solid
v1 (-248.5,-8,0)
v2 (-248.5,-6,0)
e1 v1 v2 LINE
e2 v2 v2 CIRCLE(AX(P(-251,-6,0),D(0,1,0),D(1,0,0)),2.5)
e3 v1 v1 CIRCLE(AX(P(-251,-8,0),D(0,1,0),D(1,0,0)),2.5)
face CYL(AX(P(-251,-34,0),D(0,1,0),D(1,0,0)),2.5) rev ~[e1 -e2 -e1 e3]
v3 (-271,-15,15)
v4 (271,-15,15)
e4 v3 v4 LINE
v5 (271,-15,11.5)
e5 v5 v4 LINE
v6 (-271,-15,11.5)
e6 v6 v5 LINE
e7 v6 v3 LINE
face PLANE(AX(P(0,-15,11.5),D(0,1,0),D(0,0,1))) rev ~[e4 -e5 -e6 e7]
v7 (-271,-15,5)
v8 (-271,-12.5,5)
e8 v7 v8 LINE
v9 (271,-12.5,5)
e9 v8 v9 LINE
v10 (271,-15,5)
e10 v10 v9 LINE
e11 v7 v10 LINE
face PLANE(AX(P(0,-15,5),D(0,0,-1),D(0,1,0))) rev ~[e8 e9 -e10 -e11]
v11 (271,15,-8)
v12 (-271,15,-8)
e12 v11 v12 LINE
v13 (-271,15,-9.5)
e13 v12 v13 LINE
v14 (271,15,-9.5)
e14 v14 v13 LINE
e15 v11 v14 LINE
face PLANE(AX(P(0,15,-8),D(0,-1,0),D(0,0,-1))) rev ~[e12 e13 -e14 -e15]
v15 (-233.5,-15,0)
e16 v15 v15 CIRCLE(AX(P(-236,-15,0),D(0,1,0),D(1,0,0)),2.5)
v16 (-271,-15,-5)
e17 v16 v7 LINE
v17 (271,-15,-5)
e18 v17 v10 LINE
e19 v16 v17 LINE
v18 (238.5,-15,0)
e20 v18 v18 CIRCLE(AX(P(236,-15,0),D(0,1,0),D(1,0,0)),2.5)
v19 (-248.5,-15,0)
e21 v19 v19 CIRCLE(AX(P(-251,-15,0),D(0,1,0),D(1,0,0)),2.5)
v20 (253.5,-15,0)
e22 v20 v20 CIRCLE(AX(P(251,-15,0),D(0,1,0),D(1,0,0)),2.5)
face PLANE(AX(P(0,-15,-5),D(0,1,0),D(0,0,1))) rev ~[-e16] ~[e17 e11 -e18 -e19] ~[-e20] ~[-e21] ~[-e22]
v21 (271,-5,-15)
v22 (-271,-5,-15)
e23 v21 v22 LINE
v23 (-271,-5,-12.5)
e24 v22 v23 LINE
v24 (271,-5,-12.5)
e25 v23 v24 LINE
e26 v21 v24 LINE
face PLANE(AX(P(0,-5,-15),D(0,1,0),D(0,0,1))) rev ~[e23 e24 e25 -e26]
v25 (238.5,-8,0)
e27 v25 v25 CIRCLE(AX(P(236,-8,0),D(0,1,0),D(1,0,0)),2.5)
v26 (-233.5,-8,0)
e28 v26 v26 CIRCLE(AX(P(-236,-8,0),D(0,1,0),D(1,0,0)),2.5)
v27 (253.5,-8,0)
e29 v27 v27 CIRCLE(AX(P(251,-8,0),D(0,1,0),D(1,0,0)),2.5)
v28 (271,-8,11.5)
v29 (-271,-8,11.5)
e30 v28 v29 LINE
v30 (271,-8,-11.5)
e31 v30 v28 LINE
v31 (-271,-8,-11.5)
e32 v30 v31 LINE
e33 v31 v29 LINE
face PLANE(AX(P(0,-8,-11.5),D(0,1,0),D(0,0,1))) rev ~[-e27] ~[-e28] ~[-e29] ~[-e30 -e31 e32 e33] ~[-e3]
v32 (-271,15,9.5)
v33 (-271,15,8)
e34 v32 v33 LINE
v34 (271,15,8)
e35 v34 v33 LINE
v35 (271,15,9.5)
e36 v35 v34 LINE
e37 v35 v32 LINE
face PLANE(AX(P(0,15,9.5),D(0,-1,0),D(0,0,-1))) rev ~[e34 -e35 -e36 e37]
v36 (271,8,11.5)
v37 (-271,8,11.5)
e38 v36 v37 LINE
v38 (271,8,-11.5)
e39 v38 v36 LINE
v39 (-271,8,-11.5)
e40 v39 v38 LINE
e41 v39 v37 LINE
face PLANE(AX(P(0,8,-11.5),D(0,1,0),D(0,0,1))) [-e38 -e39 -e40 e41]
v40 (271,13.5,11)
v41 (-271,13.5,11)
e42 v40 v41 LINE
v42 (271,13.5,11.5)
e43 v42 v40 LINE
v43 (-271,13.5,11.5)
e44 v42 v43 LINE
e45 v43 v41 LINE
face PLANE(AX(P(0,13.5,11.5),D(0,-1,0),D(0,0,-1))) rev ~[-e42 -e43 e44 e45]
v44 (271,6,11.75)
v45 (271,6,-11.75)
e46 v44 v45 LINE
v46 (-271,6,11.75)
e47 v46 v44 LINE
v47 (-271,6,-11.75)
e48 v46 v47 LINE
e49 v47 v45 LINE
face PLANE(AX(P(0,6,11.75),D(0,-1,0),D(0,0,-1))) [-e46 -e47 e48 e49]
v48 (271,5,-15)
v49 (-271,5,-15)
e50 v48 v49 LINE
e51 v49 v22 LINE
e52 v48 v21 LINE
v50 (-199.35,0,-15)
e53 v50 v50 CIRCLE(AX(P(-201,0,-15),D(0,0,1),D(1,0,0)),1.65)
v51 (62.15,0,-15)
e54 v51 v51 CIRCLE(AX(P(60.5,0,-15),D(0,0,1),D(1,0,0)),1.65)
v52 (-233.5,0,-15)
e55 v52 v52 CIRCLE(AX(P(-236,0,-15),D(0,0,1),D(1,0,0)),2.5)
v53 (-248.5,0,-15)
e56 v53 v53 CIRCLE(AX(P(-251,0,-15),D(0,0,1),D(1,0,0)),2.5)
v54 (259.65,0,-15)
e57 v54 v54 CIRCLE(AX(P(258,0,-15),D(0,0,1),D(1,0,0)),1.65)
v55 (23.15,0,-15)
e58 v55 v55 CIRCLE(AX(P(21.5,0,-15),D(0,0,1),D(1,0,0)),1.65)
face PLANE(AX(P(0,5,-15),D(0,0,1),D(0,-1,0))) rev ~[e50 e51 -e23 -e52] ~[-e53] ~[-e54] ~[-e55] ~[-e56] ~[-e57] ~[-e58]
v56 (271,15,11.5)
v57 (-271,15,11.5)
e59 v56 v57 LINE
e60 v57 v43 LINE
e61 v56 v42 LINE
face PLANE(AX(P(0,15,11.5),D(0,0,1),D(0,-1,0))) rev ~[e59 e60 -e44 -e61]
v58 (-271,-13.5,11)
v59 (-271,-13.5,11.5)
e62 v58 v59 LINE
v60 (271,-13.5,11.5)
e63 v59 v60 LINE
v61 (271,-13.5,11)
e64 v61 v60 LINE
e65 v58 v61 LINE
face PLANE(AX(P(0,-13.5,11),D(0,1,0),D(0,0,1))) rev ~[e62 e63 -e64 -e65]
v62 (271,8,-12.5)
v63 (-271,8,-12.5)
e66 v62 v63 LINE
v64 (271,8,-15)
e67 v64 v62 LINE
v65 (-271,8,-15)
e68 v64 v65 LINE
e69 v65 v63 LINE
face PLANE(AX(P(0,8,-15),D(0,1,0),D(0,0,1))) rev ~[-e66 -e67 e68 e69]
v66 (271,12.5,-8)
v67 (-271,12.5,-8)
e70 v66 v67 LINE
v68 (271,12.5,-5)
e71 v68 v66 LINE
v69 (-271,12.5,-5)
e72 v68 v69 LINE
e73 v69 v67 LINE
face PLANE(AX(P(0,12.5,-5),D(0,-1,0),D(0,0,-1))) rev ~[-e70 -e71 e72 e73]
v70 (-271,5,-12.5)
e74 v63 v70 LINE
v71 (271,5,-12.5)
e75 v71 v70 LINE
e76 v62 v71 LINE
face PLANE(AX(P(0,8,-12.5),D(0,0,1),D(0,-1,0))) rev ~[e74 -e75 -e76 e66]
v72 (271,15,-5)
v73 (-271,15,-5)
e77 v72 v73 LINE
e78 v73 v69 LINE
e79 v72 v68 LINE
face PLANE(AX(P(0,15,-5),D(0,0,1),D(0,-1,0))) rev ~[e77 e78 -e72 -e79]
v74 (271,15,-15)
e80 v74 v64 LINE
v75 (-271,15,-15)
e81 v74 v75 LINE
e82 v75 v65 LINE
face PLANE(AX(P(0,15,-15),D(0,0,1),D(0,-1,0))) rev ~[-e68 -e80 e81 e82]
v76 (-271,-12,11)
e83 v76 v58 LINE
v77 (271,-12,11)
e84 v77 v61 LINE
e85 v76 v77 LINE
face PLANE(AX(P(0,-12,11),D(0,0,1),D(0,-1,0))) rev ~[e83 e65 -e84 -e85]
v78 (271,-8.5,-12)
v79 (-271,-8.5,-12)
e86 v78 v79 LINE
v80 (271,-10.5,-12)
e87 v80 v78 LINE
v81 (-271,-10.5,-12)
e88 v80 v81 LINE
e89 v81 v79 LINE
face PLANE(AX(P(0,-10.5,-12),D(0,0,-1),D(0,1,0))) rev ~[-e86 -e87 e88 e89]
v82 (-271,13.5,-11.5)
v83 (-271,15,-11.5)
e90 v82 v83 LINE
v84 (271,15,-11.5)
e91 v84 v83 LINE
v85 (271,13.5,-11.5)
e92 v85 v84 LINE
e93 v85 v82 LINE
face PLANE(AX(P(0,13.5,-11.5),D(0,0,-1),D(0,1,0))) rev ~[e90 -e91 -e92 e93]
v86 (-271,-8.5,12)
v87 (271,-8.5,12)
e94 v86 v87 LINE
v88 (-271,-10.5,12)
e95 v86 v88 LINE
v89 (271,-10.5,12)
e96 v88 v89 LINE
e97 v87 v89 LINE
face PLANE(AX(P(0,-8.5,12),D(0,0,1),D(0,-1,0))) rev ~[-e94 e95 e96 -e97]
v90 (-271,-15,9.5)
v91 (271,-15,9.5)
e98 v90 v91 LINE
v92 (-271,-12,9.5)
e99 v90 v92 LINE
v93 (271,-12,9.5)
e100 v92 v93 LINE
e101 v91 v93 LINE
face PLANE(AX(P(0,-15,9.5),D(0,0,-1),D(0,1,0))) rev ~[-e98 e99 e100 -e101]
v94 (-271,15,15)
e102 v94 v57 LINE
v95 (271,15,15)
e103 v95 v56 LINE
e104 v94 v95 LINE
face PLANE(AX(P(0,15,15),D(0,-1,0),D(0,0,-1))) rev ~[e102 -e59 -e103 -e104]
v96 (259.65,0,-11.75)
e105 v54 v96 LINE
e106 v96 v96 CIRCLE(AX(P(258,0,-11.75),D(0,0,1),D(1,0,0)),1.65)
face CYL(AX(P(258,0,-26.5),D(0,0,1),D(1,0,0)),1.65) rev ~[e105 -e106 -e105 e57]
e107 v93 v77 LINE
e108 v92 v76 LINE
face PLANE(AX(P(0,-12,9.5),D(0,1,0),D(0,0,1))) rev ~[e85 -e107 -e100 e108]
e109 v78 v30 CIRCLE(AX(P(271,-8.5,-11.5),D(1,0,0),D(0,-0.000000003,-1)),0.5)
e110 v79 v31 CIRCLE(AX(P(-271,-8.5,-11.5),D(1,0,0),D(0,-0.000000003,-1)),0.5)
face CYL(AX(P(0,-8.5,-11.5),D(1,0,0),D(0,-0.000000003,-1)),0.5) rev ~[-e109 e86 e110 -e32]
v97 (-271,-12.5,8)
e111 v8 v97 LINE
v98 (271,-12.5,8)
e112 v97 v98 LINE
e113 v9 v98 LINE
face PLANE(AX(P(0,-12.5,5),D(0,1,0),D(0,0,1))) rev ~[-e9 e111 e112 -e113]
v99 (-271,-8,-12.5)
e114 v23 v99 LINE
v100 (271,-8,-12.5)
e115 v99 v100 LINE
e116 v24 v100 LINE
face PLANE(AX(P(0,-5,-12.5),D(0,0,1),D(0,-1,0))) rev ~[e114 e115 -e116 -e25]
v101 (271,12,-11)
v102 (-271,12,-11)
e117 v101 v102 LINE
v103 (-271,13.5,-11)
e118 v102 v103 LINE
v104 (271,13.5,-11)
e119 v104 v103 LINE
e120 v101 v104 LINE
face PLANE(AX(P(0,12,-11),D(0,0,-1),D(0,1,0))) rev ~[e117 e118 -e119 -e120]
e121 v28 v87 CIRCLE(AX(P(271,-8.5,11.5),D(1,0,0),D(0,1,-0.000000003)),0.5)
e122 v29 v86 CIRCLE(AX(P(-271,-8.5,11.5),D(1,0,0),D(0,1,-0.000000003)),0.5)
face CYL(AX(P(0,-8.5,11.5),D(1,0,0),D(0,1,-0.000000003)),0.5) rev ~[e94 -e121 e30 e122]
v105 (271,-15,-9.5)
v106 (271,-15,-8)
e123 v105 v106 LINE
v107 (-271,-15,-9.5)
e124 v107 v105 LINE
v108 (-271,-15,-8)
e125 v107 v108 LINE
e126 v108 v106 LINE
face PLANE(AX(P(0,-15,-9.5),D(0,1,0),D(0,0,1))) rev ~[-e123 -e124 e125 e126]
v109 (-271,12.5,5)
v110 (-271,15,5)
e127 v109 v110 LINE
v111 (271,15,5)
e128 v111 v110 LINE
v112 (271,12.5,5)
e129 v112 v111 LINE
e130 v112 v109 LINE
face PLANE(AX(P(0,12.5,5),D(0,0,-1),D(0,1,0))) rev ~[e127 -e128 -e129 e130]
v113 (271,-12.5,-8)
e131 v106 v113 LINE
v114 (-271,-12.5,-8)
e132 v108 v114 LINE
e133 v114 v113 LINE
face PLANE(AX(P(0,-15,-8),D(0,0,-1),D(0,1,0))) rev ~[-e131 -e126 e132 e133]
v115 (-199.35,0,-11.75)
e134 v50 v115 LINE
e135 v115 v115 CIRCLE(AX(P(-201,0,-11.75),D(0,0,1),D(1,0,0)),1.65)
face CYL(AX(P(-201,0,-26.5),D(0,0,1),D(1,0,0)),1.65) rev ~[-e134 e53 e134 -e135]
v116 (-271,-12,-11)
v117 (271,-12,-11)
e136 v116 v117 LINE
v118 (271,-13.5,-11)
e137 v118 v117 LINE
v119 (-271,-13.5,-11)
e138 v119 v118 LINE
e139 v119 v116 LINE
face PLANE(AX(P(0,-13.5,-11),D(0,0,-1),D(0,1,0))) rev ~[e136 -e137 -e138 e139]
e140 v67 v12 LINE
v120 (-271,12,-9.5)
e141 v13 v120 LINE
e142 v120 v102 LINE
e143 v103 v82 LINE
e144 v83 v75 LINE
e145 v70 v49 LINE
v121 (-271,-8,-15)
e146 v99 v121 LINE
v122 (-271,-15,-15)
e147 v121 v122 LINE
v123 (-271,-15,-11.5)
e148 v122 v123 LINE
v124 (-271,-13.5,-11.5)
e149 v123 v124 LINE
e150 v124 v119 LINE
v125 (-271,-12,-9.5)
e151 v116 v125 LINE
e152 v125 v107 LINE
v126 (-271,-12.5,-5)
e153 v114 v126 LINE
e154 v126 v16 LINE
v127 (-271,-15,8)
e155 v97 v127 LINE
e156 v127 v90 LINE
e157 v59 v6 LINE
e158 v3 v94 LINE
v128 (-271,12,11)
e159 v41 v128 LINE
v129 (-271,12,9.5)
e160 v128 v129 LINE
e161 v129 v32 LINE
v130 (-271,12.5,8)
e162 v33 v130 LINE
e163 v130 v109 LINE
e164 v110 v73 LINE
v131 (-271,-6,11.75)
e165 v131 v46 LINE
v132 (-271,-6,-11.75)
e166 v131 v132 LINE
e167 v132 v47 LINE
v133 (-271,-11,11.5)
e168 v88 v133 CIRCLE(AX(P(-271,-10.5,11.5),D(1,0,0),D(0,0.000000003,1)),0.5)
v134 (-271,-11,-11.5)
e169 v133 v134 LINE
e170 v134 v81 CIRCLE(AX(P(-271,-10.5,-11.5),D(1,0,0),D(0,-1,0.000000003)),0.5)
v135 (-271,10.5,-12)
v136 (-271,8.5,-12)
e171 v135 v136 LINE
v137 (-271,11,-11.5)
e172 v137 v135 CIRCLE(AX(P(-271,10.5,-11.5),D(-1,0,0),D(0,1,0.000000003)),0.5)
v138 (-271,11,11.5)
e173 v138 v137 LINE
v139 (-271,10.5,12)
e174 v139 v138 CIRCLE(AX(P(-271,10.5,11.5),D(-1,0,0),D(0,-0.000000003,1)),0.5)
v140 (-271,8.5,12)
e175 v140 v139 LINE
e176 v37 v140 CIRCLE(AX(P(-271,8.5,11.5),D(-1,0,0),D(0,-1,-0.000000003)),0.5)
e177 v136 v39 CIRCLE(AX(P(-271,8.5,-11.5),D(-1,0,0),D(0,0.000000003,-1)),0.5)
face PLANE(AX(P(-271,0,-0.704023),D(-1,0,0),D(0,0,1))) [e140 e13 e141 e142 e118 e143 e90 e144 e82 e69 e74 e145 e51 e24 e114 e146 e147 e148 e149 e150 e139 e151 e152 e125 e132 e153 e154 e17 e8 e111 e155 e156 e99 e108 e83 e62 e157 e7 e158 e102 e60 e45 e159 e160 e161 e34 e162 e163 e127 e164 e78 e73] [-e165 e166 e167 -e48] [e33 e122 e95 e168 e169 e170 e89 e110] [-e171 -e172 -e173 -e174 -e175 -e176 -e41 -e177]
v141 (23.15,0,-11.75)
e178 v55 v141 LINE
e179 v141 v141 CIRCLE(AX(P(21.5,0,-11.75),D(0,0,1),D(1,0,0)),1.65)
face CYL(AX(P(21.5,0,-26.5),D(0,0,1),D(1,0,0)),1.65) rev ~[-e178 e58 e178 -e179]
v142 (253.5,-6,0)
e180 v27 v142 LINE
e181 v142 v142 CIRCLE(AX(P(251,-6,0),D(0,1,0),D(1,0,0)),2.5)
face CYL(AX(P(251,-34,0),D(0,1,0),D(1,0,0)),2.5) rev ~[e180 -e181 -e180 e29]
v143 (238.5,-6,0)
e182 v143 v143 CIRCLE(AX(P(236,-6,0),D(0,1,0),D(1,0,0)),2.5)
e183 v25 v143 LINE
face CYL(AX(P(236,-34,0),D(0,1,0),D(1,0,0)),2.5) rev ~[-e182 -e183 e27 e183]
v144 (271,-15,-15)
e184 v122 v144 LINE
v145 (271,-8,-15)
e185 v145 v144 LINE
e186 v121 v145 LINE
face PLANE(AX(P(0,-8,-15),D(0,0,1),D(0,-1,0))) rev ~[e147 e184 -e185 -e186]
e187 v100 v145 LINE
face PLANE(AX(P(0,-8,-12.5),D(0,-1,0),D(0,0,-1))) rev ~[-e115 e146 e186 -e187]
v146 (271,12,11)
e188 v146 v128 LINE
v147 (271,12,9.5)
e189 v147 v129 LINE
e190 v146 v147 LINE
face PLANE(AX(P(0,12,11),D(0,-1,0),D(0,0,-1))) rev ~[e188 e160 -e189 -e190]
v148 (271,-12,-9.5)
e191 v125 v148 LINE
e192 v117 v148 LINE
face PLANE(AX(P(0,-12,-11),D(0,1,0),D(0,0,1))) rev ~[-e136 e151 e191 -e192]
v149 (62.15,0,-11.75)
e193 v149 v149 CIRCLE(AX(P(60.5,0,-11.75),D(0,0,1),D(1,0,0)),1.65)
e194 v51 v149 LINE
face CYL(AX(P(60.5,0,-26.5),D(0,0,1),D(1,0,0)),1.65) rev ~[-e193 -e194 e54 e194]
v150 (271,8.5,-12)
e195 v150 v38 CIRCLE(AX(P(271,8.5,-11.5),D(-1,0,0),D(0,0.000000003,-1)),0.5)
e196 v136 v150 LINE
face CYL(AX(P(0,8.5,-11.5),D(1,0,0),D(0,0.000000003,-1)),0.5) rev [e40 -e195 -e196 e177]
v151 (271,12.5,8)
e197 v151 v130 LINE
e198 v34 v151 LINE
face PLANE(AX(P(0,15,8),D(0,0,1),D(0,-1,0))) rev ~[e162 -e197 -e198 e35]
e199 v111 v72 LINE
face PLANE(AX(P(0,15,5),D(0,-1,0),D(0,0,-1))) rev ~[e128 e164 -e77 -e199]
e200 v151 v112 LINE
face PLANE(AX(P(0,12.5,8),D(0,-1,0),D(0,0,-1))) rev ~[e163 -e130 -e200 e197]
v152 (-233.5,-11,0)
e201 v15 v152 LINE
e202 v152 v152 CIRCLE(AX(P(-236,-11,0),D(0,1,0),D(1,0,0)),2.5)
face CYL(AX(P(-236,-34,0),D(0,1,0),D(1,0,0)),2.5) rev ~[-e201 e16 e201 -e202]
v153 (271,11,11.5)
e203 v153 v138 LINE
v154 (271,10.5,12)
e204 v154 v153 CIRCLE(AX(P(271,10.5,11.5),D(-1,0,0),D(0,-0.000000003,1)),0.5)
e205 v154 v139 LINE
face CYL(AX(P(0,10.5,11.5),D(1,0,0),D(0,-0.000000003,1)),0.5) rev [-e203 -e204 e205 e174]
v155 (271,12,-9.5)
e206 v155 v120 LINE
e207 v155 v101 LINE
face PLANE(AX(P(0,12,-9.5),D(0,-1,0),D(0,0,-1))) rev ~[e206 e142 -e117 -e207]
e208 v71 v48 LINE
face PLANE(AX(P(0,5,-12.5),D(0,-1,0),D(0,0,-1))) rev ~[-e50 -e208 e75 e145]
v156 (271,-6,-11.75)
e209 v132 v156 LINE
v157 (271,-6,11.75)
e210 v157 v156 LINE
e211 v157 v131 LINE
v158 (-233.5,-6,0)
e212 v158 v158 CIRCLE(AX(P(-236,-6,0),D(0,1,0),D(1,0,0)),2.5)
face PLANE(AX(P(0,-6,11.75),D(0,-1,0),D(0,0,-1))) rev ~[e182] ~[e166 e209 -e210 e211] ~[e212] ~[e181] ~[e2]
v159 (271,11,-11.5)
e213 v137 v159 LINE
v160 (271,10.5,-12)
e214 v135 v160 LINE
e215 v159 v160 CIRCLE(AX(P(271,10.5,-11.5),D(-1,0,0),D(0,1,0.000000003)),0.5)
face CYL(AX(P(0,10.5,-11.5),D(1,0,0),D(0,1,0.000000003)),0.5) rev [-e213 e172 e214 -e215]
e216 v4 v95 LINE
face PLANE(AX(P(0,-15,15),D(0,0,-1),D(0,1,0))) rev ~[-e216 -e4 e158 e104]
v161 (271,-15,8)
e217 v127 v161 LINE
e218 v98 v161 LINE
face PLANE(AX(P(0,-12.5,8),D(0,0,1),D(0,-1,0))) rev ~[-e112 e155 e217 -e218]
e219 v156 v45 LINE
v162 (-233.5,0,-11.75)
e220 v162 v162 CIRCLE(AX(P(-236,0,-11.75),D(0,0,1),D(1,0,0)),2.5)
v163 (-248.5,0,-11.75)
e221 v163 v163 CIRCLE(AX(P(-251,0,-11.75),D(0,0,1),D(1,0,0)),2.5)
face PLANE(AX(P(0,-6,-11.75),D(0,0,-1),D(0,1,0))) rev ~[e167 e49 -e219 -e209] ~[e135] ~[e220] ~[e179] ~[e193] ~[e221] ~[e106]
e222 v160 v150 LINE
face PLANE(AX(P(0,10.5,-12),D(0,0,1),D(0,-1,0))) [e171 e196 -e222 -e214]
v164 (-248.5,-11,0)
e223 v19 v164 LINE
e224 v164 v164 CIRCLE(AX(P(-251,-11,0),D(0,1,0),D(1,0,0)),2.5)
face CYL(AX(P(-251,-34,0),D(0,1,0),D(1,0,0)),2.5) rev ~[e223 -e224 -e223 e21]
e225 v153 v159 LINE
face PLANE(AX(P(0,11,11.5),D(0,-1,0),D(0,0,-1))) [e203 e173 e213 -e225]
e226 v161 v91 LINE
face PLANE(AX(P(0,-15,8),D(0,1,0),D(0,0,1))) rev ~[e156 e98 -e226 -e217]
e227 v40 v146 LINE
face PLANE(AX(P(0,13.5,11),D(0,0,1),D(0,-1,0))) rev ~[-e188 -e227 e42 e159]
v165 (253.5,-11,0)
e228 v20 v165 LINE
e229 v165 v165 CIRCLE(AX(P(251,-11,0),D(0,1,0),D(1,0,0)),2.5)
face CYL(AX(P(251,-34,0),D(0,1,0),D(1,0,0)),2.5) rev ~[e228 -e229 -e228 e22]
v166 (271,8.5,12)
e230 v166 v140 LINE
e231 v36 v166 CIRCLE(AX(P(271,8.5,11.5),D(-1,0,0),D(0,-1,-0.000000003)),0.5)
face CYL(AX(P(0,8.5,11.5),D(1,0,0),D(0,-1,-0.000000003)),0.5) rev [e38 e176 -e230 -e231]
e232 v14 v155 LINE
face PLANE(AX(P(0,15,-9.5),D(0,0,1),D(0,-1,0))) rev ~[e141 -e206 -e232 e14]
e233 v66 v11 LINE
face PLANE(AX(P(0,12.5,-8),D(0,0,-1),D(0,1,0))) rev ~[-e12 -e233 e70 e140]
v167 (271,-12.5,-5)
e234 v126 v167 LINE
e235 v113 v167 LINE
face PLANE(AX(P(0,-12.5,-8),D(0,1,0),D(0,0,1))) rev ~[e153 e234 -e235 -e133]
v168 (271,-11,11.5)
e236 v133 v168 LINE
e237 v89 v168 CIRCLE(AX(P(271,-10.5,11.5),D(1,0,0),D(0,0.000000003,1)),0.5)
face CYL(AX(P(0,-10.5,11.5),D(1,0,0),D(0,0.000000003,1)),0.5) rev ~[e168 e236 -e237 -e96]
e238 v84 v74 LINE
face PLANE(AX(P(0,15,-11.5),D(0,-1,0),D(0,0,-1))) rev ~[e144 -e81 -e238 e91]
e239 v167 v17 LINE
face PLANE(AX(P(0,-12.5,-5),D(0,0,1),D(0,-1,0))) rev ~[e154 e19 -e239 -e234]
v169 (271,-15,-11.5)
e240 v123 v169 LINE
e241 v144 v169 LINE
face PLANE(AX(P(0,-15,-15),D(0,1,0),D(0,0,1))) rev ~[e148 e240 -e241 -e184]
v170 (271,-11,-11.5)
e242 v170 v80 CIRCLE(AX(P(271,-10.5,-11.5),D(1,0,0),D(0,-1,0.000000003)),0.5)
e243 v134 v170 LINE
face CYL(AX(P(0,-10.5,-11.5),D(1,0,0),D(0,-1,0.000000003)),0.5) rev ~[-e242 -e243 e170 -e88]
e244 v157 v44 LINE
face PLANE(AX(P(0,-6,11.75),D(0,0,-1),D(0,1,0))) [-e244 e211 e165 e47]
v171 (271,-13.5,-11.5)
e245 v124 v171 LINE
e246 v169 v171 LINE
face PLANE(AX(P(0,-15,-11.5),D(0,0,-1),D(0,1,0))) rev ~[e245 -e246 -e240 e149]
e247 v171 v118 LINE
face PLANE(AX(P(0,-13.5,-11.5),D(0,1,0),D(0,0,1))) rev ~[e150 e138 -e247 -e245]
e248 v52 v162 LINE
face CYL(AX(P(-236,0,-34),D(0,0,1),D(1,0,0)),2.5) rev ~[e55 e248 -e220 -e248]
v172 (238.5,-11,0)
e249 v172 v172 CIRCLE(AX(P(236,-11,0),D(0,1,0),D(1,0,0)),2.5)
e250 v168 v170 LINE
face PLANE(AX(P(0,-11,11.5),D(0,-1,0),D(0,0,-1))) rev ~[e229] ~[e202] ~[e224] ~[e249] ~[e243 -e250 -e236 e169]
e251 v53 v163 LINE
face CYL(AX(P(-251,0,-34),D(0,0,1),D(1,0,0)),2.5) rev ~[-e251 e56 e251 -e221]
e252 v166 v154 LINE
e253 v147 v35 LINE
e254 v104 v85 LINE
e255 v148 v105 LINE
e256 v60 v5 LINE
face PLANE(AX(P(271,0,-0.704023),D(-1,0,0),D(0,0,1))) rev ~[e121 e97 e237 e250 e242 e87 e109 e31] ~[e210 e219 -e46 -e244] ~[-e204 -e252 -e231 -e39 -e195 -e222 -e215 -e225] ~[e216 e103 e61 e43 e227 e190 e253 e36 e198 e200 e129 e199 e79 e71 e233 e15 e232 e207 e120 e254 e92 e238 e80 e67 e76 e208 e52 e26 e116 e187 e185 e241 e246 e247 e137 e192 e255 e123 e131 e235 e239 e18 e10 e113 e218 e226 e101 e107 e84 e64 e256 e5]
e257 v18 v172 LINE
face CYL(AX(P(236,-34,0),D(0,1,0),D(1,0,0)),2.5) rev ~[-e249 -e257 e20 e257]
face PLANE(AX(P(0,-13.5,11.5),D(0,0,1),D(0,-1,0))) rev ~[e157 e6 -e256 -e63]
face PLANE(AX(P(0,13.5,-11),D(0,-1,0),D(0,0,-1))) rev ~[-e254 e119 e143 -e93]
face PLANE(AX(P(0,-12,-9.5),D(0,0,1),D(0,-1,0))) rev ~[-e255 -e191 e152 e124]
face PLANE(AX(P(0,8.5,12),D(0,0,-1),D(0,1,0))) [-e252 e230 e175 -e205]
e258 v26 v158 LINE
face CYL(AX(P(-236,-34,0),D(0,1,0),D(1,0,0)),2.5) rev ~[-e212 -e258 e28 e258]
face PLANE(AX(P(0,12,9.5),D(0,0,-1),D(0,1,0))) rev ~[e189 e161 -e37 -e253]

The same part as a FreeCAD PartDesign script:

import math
import FreeCAD as App
import Part
import Sketcher
Q = App.Units.Quantity

doc = App.newDocument("Part")
body = doc.addObject("PartDesign::Body", "Body")

# Sketch on YZ plane
sketch1 = doc.addObject("Sketcher::SketchObject", "Sketch")
body.addObject(sketch1)
sketch1.AttachmentSupport = (doc.YZ_Plane, [""])
sketch1.MapMode = "FlatFace"
sketch1.addGeometry(Part.LineSegment(App.Vector(15, 11.5, 0), App.Vector(15, 15, 0)), False)
sketch1.addGeometry(Part.LineSegment(App.Vector(15, 15, 0), App.Vector(-15, 15, 0)), False)
sketch1.addGeometry(Part.LineSegment(App.Vector(-15, 15, 0), App.Vector(-15, 11.5, 0)), False)
sketch1.addGeometry(Part.LineSegment(App.Vector(-15, 11.5, 0), App.Vector(-13.5, 11.5, 0)), False)
sketch1.addGeometry(Part.LineSegment(App.Vector(-13.5, 11.5, 0), App.Vector(-13.5, 11, 0)), False)
sketch1.addGeometry(Part.LineSegment(App.Vector(-13.5, 11, 0), App.Vector(-12, 11, 0)), False)
sketch1.addGeometry(Part.LineSegment(App.Vector(-12, 11, 0), App.Vector(-12, 9.5, 0)), False)
sketch1.addGeometry(Part.LineSegment(App.Vector(-12, 9.5, 0), App.Vector(-15, 9.5, 0)), False)
sketch1.addGeometry(Part.LineSegment(App.Vector(-15, 9.5, 0), App.Vector(-15, 8, 0)), False)
sketch1.addGeometry(Part.LineSegment(App.Vector(-15, 8, 0), App.Vector(-12.5, 8, 0)), False)
sketch1.addGeometry(Part.LineSegment(App.Vector(-12.5, 8, 0), App.Vector(-12.5, 5, 0)), False)
sketch1.addGeometry(Part.LineSegment(App.Vector(-12.5, 5, 0), App.Vector(-15, 5, 0)), False)
sketch1.addGeometry(Part.LineSegment(App.Vector(-15, 5, 0), App.Vector(-15, -5, 0)), False)
sketch1.addGeometry(Part.LineSegment(App.Vector(-15, -5, 0), App.Vector(-12.5, -5, 0)), False)
sketch1.addGeometry(Part.LineSegment(App.Vector(-12.5, -5, 0), App.Vector(-12.5, -8, 0)), False)
sketch1.addGeometry(Part.LineSegment(App.Vector(-12.5, -8, 0), App.Vector(-15, -8, 0)), False)
sketch1.addGeometry(Part.LineSegment(App.Vector(-15, -8, 0), App.Vector(-15, -9.5, 0)), False)
sketch1.addGeometry(Part.LineSegment(App.Vector(-15, -9.5, 0), App.Vector(-12, -9.5, 0)), False)
sketch1.addGeometry(Part.LineSegment(App.Vector(-12, -9.5, 0), App.Vector(-12, -11, 0)), False)
sketch1.addGeometry(Part.LineSegment(App.Vector(-12, -11, 0), App.Vector(-13.5, -11, 0)), False)
sketch1.addGeometry(Part.LineSegment(App.Vector(-13.5, -11, 0), App.Vector(-13.5, -11.5, 0)), False)
sketch1.addGeometry(Part.LineSegment(App.Vector(-13.5, -11.5, 0), App.Vector(-15, -11.5, 0)), False)
sketch1.addGeometry(Part.LineSegment(App.Vector(-15, -11.5, 0), App.Vector(-15, -15, 0)), False)
sketch1.addGeometry(Part.LineSegment(App.Vector(-15, -15, 0), App.Vector(-8, -15, 0)), False)
sketch1.addGeometry(Part.LineSegment(App.Vector(-8, -15, 0), App.Vector(-8, -12.5, 0)), False)
sketch1.addGeometry(Part.LineSegment(App.Vector(-8, -12.5, 0), App.Vector(-5, -12.5, 0)), False)
sketch1.addGeometry(Part.LineSegment(App.Vector(-5, -12.5, 0), App.Vector(-5, -15, 0)), False)
sketch1.addGeometry(Part.LineSegment(App.Vector(-5, -15, 0), App.Vector(5, -15, 0)), False)
sketch1.addGeometry(Part.LineSegment(App.Vector(5, -15, 0), App.Vector(5, -12.5, 0)), False)
sketch1.addGeometry(Part.LineSegment(App.Vector(5, -12.5, 0), App.Vector(8, -12.5, 0)), False)
sketch1.addGeometry(Part.LineSegment(App.Vector(8, -12.5, 0), App.Vector(8, -15, 0)), False)
sketch1.addGeometry(Part.LineSegment(App.Vector(8, -15, 0), App.Vector(15, -15, 0)), False)
sketch1.addGeometry(Part.LineSegment(App.Vector(15, -15, 0), App.Vector(15, -11.5, 0)), False)
sketch1.addGeometry(Part.LineSegment(App.Vector(15, -11.5, 0), App.Vector(13.5, -11.5, 0)), False)
sketch1.addGeometry(Part.LineSegment(App.Vector(13.5, -11.5, 0), App.Vector(13.5, -11, 0)), False)
sketch1.addGeometry(Part.LineSegment(App.Vector(13.5, -11, 0), App.Vector(12, -11, 0)), False)
sketch1.addGeometry(Part.LineSegment(App.Vector(12, -11, 0), App.Vector(12, -9.5, 0)), False)
sketch1.addGeometry(Part.LineSegment(App.Vector(12, -9.5, 0), App.Vector(15, -9.5, 0)), False)
sketch1.addGeometry(Part.LineSegment(App.Vector(15, -9.5, 0), App.Vector(15, -8, 0)), False)
sketch1.addGeometry(Part.LineSegment(App.Vector(15, -8, 0), App.Vector(12.5, -8, 0)), False)
sketch1.addGeometry(Part.LineSegment(App.Vector(12.5, -8, 0), App.Vector(12.5, -5, 0)), False)
sketch1.addGeometry(Part.LineSegment(App.Vector(12.5, -5, 0), App.Vector(15, -5, 0)), False)
sketch1.addGeometry(Part.LineSegment(App.Vector(15, -5, 0), App.Vector(15, 5, 0)), False)
sketch1.addGeometry(Part.LineSegment(App.Vector(15, 5, 0), App.Vector(12.5, 5, 0)), False)
sketch1.addGeometry(Part.LineSegment(App.Vector(12.5, 5, 0), App.Vector(12.5, 8, 0)), False)
sketch1.addGeometry(Part.LineSegment(App.Vector(12.5, 8, 0), App.Vector(15, 8, 0)), False)
sketch1.addGeometry(Part.LineSegment(App.Vector(15, 8, 0), App.Vector(15, 9.5, 0)), False)
sketch1.addGeometry(Part.LineSegment(App.Vector(15, 9.5, 0), App.Vector(12, 9.5, 0)), False)
sketch1.addGeometry(Part.LineSegment(App.Vector(12, 9.5, 0), App.Vector(12, 11, 0)), False)
sketch1.addGeometry(Part.LineSegment(App.Vector(12, 11, 0), App.Vector(13.5, 11, 0)), False)
sketch1.addGeometry(Part.LineSegment(App.Vector(13.5, 11, 0), App.Vector(13.5, 11.5, 0)), False)
sketch1.addGeometry(Part.LineSegment(App.Vector(13.5, 11.5, 0), App.Vector(15, 11.5, 0)), False)
sketch1.addGeometry(Part.ArcOfCircle(Part.Circle(App.Vector(-10.5, -11.5, 0), App.Vector(0, 0, 1), 0.5), math.radians(180), math.radians(270)), False)
sketch1.addGeometry(Part.LineSegment(App.Vector(-11, -11.5, 0), App.Vector(-11, 11.5, 0)), False)
sketch1.addGeometry(Part.ArcOfCircle(Part.Circle(App.Vector(-10.5, 11.5, 0), App.Vector(0, 0, 1), 0.5), math.radians(90), math.radians(180)), False)
sketch1.addGeometry(Part.LineSegment(App.Vector(-10.5, 12, 0), App.Vector(-8.5, 12, 0)), False)
sketch1.addGeometry(Part.ArcOfCircle(Part.Circle(App.Vector(-8.5, 11.5, 0), App.Vector(0, 0, 1), 0.5), math.radians(0), math.radians(90)), False)
sketch1.addGeometry(Part.LineSegment(App.Vector(-8, 11.5, 0), App.Vector(-8, -11.5, 0)), False)
sketch1.addGeometry(Part.ArcOfCircle(Part.Circle(App.Vector(-8.5, -11.5, 0), App.Vector(0, 0, 1), 0.5), math.radians(-90), math.radians(0)), False)
sketch1.addGeometry(Part.LineSegment(App.Vector(-8.5, -12, 0), App.Vector(-10.5, -12, 0)), False)
sketch1.addGeometry(Part.LineSegment(App.Vector(-6, 11.75, 0), App.Vector(6, 11.75, 0)), False)
sketch1.addGeometry(Part.LineSegment(App.Vector(6, 11.75, 0), App.Vector(6, -11.75, 0)), False)
sketch1.addGeometry(Part.LineSegment(App.Vector(6, -11.75, 0), App.Vector(-6, -11.75, 0)), False)
sketch1.addGeometry(Part.LineSegment(App.Vector(-6, -11.75, 0), App.Vector(-6, 11.75, 0)), False)
sketch1.addGeometry(Part.LineSegment(App.Vector(11, 11.5, 0), App.Vector(11, -11.5, 0)), False)
sketch1.addGeometry(Part.ArcOfCircle(Part.Circle(App.Vector(10.5, -11.5, 0), App.Vector(0, 0, 1), 0.5), math.radians(-90), math.radians(0)), False)
sketch1.addGeometry(Part.LineSegment(App.Vector(10.5, -12, 0), App.Vector(8.5, -12, 0)), False)
sketch1.addGeometry(Part.ArcOfCircle(Part.Circle(App.Vector(8.5, -11.5, 0), App.Vector(0, 0, 1), 0.5), math.radians(180), math.radians(270)), False)
sketch1.addGeometry(Part.LineSegment(App.Vector(8, -11.5, 0), App.Vector(8, 11.5, 0)), False)
sketch1.addGeometry(Part.ArcOfCircle(Part.Circle(App.Vector(8.5, 11.5, 0), App.Vector(0, 0, 1), 0.5), math.radians(90), math.radians(180)), False)
sketch1.addGeometry(Part.LineSegment(App.Vector(8.5, 12, 0), App.Vector(10.5, 12, 0)), False)
sketch1.addGeometry(Part.ArcOfCircle(Part.Circle(App.Vector(10.5, 11.5, 0), App.Vector(0, 0, 1), 0.5), math.radians(0), math.radians(90)), False)
sketch1.addConstraint(Sketcher.Constraint("Coincident", 0, 2, 1, 1))
sketch1.addConstraint(Sketcher.Constraint("Coincident", 1, 2, 2, 1))
sketch1.addConstraint(Sketcher.Constraint("Coincident", 2, 2, 3, 1))
sketch1.addConstraint(Sketcher.Constraint("Coincident", 3, 2, 4, 1))
sketch1.addConstraint(Sketcher.Constraint("Coincident", 4, 2, 5, 1))
sketch1.addConstraint(Sketcher.Constraint("Coincident", 5, 2, 6, 1))
sketch1.addConstraint(Sketcher.Constraint("Coincident", 6, 2, 7, 1))
sketch1.addConstraint(Sketcher.Constraint("Coincident", 7, 2, 8, 1))
sketch1.addConstraint(Sketcher.Constraint("Coincident", 8, 2, 9, 1))
sketch1.addConstraint(Sketcher.Constraint("Coincident", 9, 2, 10, 1))
sketch1.addConstraint(Sketcher.Constraint("Coincident", 10, 2, 11, 1))
sketch1.addConstraint(Sketcher.Constraint("Coincident", 11, 2, 12, 1))
sketch1.addConstraint(Sketcher.Constraint("Coincident", 12, 2, 13, 1))
sketch1.addConstraint(Sketcher.Constraint("Coincident", 13, 2, 14, 1))
sketch1.addConstraint(Sketcher.Constraint("Coincident", 14, 2, 15, 1))
sketch1.addConstraint(Sketcher.Constraint("Coincident", 15, 2, 16, 1))
sketch1.addConstraint(Sketcher.Constraint("Coincident", 16, 2, 17, 1))
sketch1.addConstraint(Sketcher.Constraint("Coincident", 17, 2, 18, 1))
sketch1.addConstraint(Sketcher.Constraint("Coincident", 18, 2, 19, 1))
sketch1.addConstraint(Sketcher.Constraint("Coincident", 19, 2, 20, 1))
sketch1.addConstraint(Sketcher.Constraint("Coincident", 20, 2, 21, 1))
sketch1.addConstraint(Sketcher.Constraint("Coincident", 21, 2, 22, 1))
sketch1.addConstraint(Sketcher.Constraint("Coincident", 22, 2, 23, 1))
sketch1.addConstraint(Sketcher.Constraint("Coincident", 23, 2, 24, 1))
sketch1.addConstraint(Sketcher.Constraint("Coincident", 24, 2, 25, 1))
sketch1.addConstraint(Sketcher.Constraint("Coincident", 25, 2, 26, 1))
sketch1.addConstraint(Sketcher.Constraint("Coincident", 26, 2, 27, 1))
sketch1.addConstraint(Sketcher.Constraint("Coincident", 27, 2, 28, 1))
sketch1.addConstraint(Sketcher.Constraint("Coincident", 28, 2, 29, 1))
sketch1.addConstraint(Sketcher.Constraint("Coincident", 29, 2, 30, 1))
sketch1.addConstraint(Sketcher.Constraint("Coincident", 30, 2, 31, 1))
sketch1.addConstraint(Sketcher.Constraint("Coincident", 31, 2, 32, 1))
sketch1.addConstraint(Sketcher.Constraint("Coincident", 32, 2, 33, 1))
sketch1.addConstraint(Sketcher.Constraint("Coincident", 33, 2, 34, 1))
sketch1.addConstraint(Sketcher.Constraint("Coincident", 34, 2, 35, 1))
sketch1.addConstraint(Sketcher.Constraint("Coincident", 35, 2, 36, 1))
sketch1.addConstraint(Sketcher.Constraint("Coincident", 36, 2, 37, 1))
sketch1.addConstraint(Sketcher.Constraint("Coincident", 37, 2, 38, 1))
sketch1.addConstraint(Sketcher.Constraint("Coincident", 38, 2, 39, 1))
sketch1.addConstraint(Sketcher.Constraint("Coincident", 39, 2, 40, 1))
sketch1.addConstraint(Sketcher.Constraint("Coincident", 40, 2, 41, 1))
sketch1.addConstraint(Sketcher.Constraint("Coincident", 41, 2, 42, 1))
sketch1.addConstraint(Sketcher.Constraint("Coincident", 42, 2, 43, 1))
sketch1.addConstraint(Sketcher.Constraint("Coincident", 43, 2, 44, 1))
sketch1.addConstraint(Sketcher.Constraint("Coincident", 44, 2, 45, 1))
sketch1.addConstraint(Sketcher.Constraint("Coincident", 45, 2, 46, 1))
sketch1.addConstraint(Sketcher.Constraint("Coincident", 46, 2, 47, 1))
sketch1.addConstraint(Sketcher.Constraint("Coincident", 47, 2, 48, 1))
sketch1.addConstraint(Sketcher.Constraint("Coincident", 48, 2, 49, 1))
sketch1.addConstraint(Sketcher.Constraint("Coincident", 49, 2, 50, 1))
sketch1.addConstraint(Sketcher.Constraint("Coincident", 50, 2, 51, 1))
sketch1.addConstraint(Sketcher.Constraint("Coincident", 51, 2, 0, 1))
sketch1.addConstraint(Sketcher.Constraint("Tangent", 52, 1, 53, 1))
sketch1.addConstraint(Sketcher.Constraint("Tangent", 53, 2, 54, 2))
sketch1.addConstraint(Sketcher.Constraint("Tangent", 54, 1, 55, 1))
sketch1.addConstraint(Sketcher.Constraint("Tangent", 55, 2, 56, 2))
sketch1.addConstraint(Sketcher.Constraint("Tangent", 56, 1, 57, 1))
sketch1.addConstraint(Sketcher.Constraint("Tangent", 57, 2, 58, 2))
sketch1.addConstraint(Sketcher.Constraint("Tangent", 58, 1, 59, 1))
sketch1.addConstraint(Sketcher.Constraint("Tangent", 59, 2, 52, 2))
sketch1.addConstraint(Sketcher.Constraint("Coincident", 60, 2, 61, 1))
sketch1.addConstraint(Sketcher.Constraint("Coincident", 61, 2, 62, 1))
sketch1.addConstraint(Sketcher.Constraint("Coincident", 62, 2, 63, 1))
sketch1.addConstraint(Sketcher.Constraint("Coincident", 63, 2, 60, 1))
sketch1.addConstraint(Sketcher.Constraint("Tangent", 64, 2, 65, 2))
sketch1.addConstraint(Sketcher.Constraint("Tangent", 65, 1, 66, 1))
sketch1.addConstraint(Sketcher.Constraint("Tangent", 66, 2, 67, 2))
sketch1.addConstraint(Sketcher.Constraint("Tangent", 67, 1, 68, 1))
sketch1.addConstraint(Sketcher.Constraint("Tangent", 68, 2, 69, 2))
sketch1.addConstraint(Sketcher.Constraint("Tangent", 69, 1, 70, 1))
sketch1.addConstraint(Sketcher.Constraint("Tangent", 70, 2, 71, 2))
sketch1.addConstraint(Sketcher.Constraint("Tangent", 71, 1, 64, 1))
sketch1.addConstraint(Sketcher.Constraint("Vertical", 0))
sketch1.addConstraint(Sketcher.Constraint("Horizontal", 1))
sketch1.addConstraint(Sketcher.Constraint("Vertical", 2))
sketch1.addConstraint(Sketcher.Constraint("Horizontal", 3))
sketch1.addConstraint(Sketcher.Constraint("Vertical", 4))
sketch1.addConstraint(Sketcher.Constraint("Horizontal", 5))
sketch1.addConstraint(Sketcher.Constraint("Vertical", 6))
sketch1.addConstraint(Sketcher.Constraint("Horizontal", 7))
sketch1.addConstraint(Sketcher.Constraint("Vertical", 8))
sketch1.addConstraint(Sketcher.Constraint("Horizontal", 9))
sketch1.addConstraint(Sketcher.Constraint("Vertical", 10))
sketch1.addConstraint(Sketcher.Constraint("Horizontal", 11))
sketch1.addConstraint(Sketcher.Constraint("Vertical", 12))
sketch1.addConstraint(Sketcher.Constraint("Horizontal", 13))
sketch1.addConstraint(Sketcher.Constraint("Vertical", 14))
sketch1.addConstraint(Sketcher.Constraint("Horizontal", 15))
sketch1.addConstraint(Sketcher.Constraint("Vertical", 16))
sketch1.addConstraint(Sketcher.Constraint("Horizontal", 17))
sketch1.addConstraint(Sketcher.Constraint("Vertical", 18))
sketch1.addConstraint(Sketcher.Constraint("Horizontal", 19))
sketch1.addConstraint(Sketcher.Constraint("Vertical", 20))
sketch1.addConstraint(Sketcher.Constraint("Horizontal", 21))
sketch1.addConstraint(Sketcher.Constraint("Vertical", 22))
sketch1.addConstraint(Sketcher.Constraint("Horizontal", 23))
sketch1.addConstraint(Sketcher.Constraint("Vertical", 24))
sketch1.addConstraint(Sketcher.Constraint("Horizontal", 25))
sketch1.addConstraint(Sketcher.Constraint("Vertical", 26))
sketch1.addConstraint(Sketcher.Constraint("Horizontal", 27))
sketch1.addConstraint(Sketcher.Constraint("Vertical", 28))
sketch1.addConstraint(Sketcher.Constraint("Horizontal", 29))
sketch1.addConstraint(Sketcher.Constraint("Vertical", 30))
sketch1.addConstraint(Sketcher.Constraint("Horizontal", 31))
sketch1.addConstraint(Sketcher.Constraint("Vertical", 32))
sketch1.addConstraint(Sketcher.Constraint("Horizontal", 33))
sketch1.addConstraint(Sketcher.Constraint("Vertical", 34))
sketch1.addConstraint(Sketcher.Constraint("Horizontal", 35))
sketch1.addConstraint(Sketcher.Constraint("Vertical", 36))
sketch1.addConstraint(Sketcher.Constraint("Horizontal", 37))
sketch1.addConstraint(Sketcher.Constraint("Vertical", 38))
sketch1.addConstraint(Sketcher.Constraint("Horizontal", 39))
sketch1.addConstraint(Sketcher.Constraint("Vertical", 40))
sketch1.addConstraint(Sketcher.Constraint("Horizontal", 41))
sketch1.addConstraint(Sketcher.Constraint("Vertical", 42))
sketch1.addConstraint(Sketcher.Constraint("Horizontal", 43))
sketch1.addConstraint(Sketcher.Constraint("Vertical", 44))
sketch1.addConstraint(Sketcher.Constraint("Horizontal", 45))
sketch1.addConstraint(Sketcher.Constraint("Vertical", 46))
sketch1.addConstraint(Sketcher.Constraint("Horizontal", 47))
sketch1.addConstraint(Sketcher.Constraint("Vertical", 48))
sketch1.addConstraint(Sketcher.Constraint("Horizontal", 49))
sketch1.addConstraint(Sketcher.Constraint("Vertical", 50))
sketch1.addConstraint(Sketcher.Constraint("Horizontal", 51))
sketch1.addConstraint(Sketcher.Constraint("Vertical", 53))
sketch1.addConstraint(Sketcher.Constraint("Horizontal", 55))
sketch1.addConstraint(Sketcher.Constraint("Vertical", 57))
sketch1.addConstraint(Sketcher.Constraint("Horizontal", 59))
sketch1.addConstraint(Sketcher.Constraint("Horizontal", 60))
sketch1.addConstraint(Sketcher.Constraint("Vertical", 61))
sketch1.addConstraint(Sketcher.Constraint("Horizontal", 62))
sketch1.addConstraint(Sketcher.Constraint("Vertical", 63))
sketch1.addConstraint(Sketcher.Constraint("Vertical", 64))
sketch1.addConstraint(Sketcher.Constraint("Horizontal", 66))
sketch1.addConstraint(Sketcher.Constraint("Vertical", 68))
sketch1.addConstraint(Sketcher.Constraint("Horizontal", 70))
sketch1.addConstraint(Sketcher.Constraint("Equal", 52, 54))
sketch1.addConstraint(Sketcher.Constraint("Equal", 54, 56))
sketch1.addConstraint(Sketcher.Constraint("Equal", 56, 58))
sketch1.addConstraint(Sketcher.Constraint("Equal", 58, 65))
sketch1.addConstraint(Sketcher.Constraint("Equal", 65, 67))
sketch1.addConstraint(Sketcher.Constraint("Equal", 67, 69))
sketch1.addConstraint(Sketcher.Constraint("Equal", 69, 71))
sketch1.addConstraint(Sketcher.Constraint("Symmetric", 54, 3, 65, 3, -1, 1))
sketch1.addConstraint(Sketcher.Constraint("Symmetric", 58, 3, 69, 3, -1, 1))
sketch1.addConstraint(Sketcher.Constraint("Symmetric", 0, 2, 22, 2, -1, 1))
sketch1.addConstraint(Sketcher.Constraint("Symmetric", 1, 2, 31, 2, -1, 1))
sketch1.addConstraint(Sketcher.Constraint("Symmetric", 3, 2, 33, 2, -1, 1))
sketch1.addConstraint(Sketcher.Constraint("Symmetric", 5, 2, 35, 2, -1, 1))
sketch1.addConstraint(Sketcher.Constraint("Symmetric", 7, 2, 37, 2, -1, 1))
sketch1.addConstraint(Sketcher.Constraint("Symmetric", 9, 2, 39, 2, -1, 1))
sketch1.addConstraint(Sketcher.Constraint("Symmetric", 11, 2, 41, 2, -1, 1))
sketch1.addConstraint(Sketcher.Constraint("Symmetric", 13, 2, 43, 2, -1, 1))
sketch1.addConstraint(Sketcher.Constraint("Symmetric", 15, 2, 45, 2, -1, 1))
sketch1.addConstraint(Sketcher.Constraint("Symmetric", 17, 2, 47, 2, -1, 1))
sketch1.addConstraint(Sketcher.Constraint("Symmetric", 19, 2, 49, 2, -1, 1))
sketch1.addConstraint(Sketcher.Constraint("Symmetric", 60, 2, 62, 2, -1, 1))
sketch1.addConstraint(Sketcher.Constraint("Symmetric", 25, 2, 28, 2, -2))
sketch1.addConstraint(Sketcher.Constraint("Symmetric", 21, 2, 32, 2, -2))
sketch1.addConstraint(Sketcher.Constraint("Symmetric", 19, 2, 34, 2, -2))
sketch1.addConstraint(Sketcher.Constraint("Symmetric", 17, 2, 36, 2, -2))
sketch1.addConstraint(Sketcher.Constraint("Symmetric", 15, 2, 38, 2, -2))
sketch1.addConstraint(Sketcher.Constraint("Symmetric", 13, 2, 40, 2, -2))
sketch1.addConstraint(Sketcher.Constraint("Horizontal", 58, 3, 65, 3))
sketch1.addConstraint(Sketcher.Constraint("Horizontal", 71, 3, 2, 2))
sketch1.addConstraint(Sketcher.Constraint("Horizontal", 23, 2, 26, 2))
sketch1.addConstraint(Sketcher.Constraint("Horizontal", 3, 2, 50, 2))
sketch1.addConstraint(Sketcher.Constraint("Vertical", 2, 2, 7, 2))
sketch1.addConstraint(Sketcher.Constraint("Vertical", 8, 2, 11, 2))
sketch1.addConstraint(Sketcher.Constraint("Vertical", 24, 2, 56, 1))
sketch1.addConstraint(Sketcher.Constraint("Vertical", 30, 2, 67, 1))
sketch1.addConstraint(Sketcher.Constraint("Equal", 3, 5))
sketch1.addConstraint(Sketcher.Constraint("Equal", 17, 25))
sketch1.addConstraint(Sketcher.Constraint("Equal", 51, 6))
sketch1.addConstraint(Sketcher.Constraint("Equal", 6, 8))
sketch1.addConstraint(Sketcher.Constraint("Equal", 47, 10))
sketch1.addConstraint(Sketcher.Constraint("Equal", 27, 12))
sketch1.addConstraint(Sketcher.Constraint("Equal", 45, 24))
sketch1.addConstraint(Sketcher.Constraint("Radius", 52, Q("0.5 mm")))
sketch1.addConstraint(Sketcher.Constraint("DistanceX", 1, 2, 1, 1, Q("30 mm")))
sketch1.addConstraint(Sketcher.Constraint("DistanceX", 7, 2, 7, 1, Q("3 mm")))
sketch1.addConstraint(Sketcher.Constraint("DistanceX", 23, 1, 23, 2, Q("7 mm")))
sketch1.addConstraint(Sketcher.Constraint("DistanceX", 55, 1, 55, 2, Q("2 mm")))
sketch1.addConstraint(Sketcher.Constraint("DistanceX", 60, 1, 60, 2, Q("12 mm")))
sketch1.addConstraint(Sketcher.Constraint("DistanceY", 53, 1, 53, 2, Q("23 mm")))
sketch1.addConstraint(Sketcher.Constraint("DistanceX", 9, 1, 9, 2, Q("2.5 mm")))
sketch1.addConstraint(Sketcher.Constraint("DistanceY", 0, 1, 0, 2, Q("3.5 mm")))
sketch1.addConstraint(Sketcher.Constraint("DistanceY", 61, 2, 61, 1, Q("23.5 mm")))
pad1 = doc.addObject("PartDesign::Pad", "Pad")
body.addObject(pad1)
pad1.Profile = sketch1
pad1.Length = 542
pad1.Midplane = True

# Sketch on XZ plane
sketch2 = doc.addObject("Sketcher::SketchObject", "Sketch001")
body.addObject(sketch2)
sketch2.AttachmentSupport = (doc.XZ_Plane, [""])
sketch2.MapMode = "FlatFace"
sketch2.AttachmentOffset = App.Placement(App.Vector(0, 0, 15), App.Rotation())
sketch2.addGeometry(Part.Circle(App.Vector(236, 0, 0), App.Vector(0, 0, 1), 2.5), False)
sketch2.addGeometry(Part.Circle(App.Vector(251, 0, 0), App.Vector(0, 0, 1), 2.5), False)
sketch2.addGeometry(Part.Circle(App.Vector(-251, 0, 0), App.Vector(0, 0, 1), 2.5), False)
sketch2.addGeometry(Part.Circle(App.Vector(-236, 0, 0), App.Vector(0, 0, 1), 2.5), False)
sketch2.addConstraint(Sketcher.Constraint("Equal", 0, 1))
sketch2.addConstraint(Sketcher.Constraint("Equal", 1, 2))
sketch2.addConstraint(Sketcher.Constraint("Equal", 2, 3))
sketch2.addConstraint(Sketcher.Constraint("Symmetric", 1, 3, 2, 3, -1, 1))
sketch2.addConstraint(Sketcher.Constraint("Symmetric", 0, 3, 3, 3, -1, 1))
sketch2.addConstraint(Sketcher.Constraint("PointOnObject", 0, 3, -1))
sketch2.addConstraint(Sketcher.Constraint("PointOnObject", 1, 3, -1))
sketch2.addConstraint(Sketcher.Constraint("Diameter", 0, Q("5 mm")))
sketch2.addConstraint(Sketcher.Constraint("DistanceX", -1, 1, 0, 3, Q("236 mm")))
sketch2.addConstraint(Sketcher.Constraint("DistanceX", -1, 1, 1, 3, Q("251 mm")))
doc.recompute()
hole = doc.addObject("PartDesign::Hole", "Hole")
body.addObject(hole)
hole.Profile = sketch2
hole.ThreadType = "None"
hole.Diameter = 5
hole.DepthType = "Dimension"
hole.Depth = 19
hole.DrillPoint = "Angled"
hole.DrillPointAngle = 118

# Sketch on XY plane
sketch3 = doc.addObject("Sketcher::SketchObject", "Sketch002")
body.addObject(sketch3)
sketch3.AttachmentSupport = (doc.XY_Plane, [""])
sketch3.MapMode = "FlatFace"
sketch3.AttachmentOffset = App.Placement(App.Vector(0, 0, -15), App.Rotation())
sketch3.addGeometry(Part.Circle(App.Vector(-236, 0, 0), App.Vector(0, 0, 1), 2.5), False)
sketch3.addGeometry(Part.Circle(App.Vector(-251, 0, 0), App.Vector(0, 0, 1), 2.5), False)
sketch3.addConstraint(Sketcher.Constraint("Equal", 0, 1))
sketch3.addConstraint(Sketcher.Constraint("PointOnObject", 0, 3, -1))
sketch3.addConstraint(Sketcher.Constraint("PointOnObject", 1, 3, -1))
sketch3.addConstraint(Sketcher.Constraint("Diameter", 0, Q("5 mm")))
sketch3.addConstraint(Sketcher.Constraint("DistanceX", 0, 3, -1, 1, Q("236 mm")))
sketch3.addConstraint(Sketcher.Constraint("DistanceX", 1, 3, -1, 1, Q("251 mm")))
doc.recompute()
hole2 = doc.addObject("PartDesign::Hole", "Hole001")
body.addObject(hole2)
hole2.Profile = sketch3
hole2.ThreadType = "None"
hole2.Diameter = 5
hole2.DepthType = "Dimension"
hole2.Depth = 19
hole2.DrillPoint = "Angled"
hole2.DrillPointAngle = 118
hole2.Reversed = True

# Sketch on XY plane
sketch4 = doc.addObject("Sketcher::SketchObject", "Sketch003")
body.addObject(sketch4)
sketch4.AttachmentSupport = (doc.XY_Plane, [""])
sketch4.MapMode = "FlatFace"
sketch4.AttachmentOffset = App.Placement(App.Vector(0, 0, -15), App.Rotation())
sketch4.addGeometry(Part.Circle(App.Vector(258, 0, 0), App.Vector(0, 0, 1), 1.65), False)
sketch4.addGeometry(Part.Circle(App.Vector(60.5, 0, 0), App.Vector(0, 0, 1), 1.65), False)
sketch4.addGeometry(Part.Circle(App.Vector(21.5, 0, 0), App.Vector(0, 0, 1), 1.65), False)
sketch4.addGeometry(Part.Circle(App.Vector(-201, 0, 0), App.Vector(0, 0, 1), 1.65), False)
sketch4.addConstraint(Sketcher.Constraint("Equal", 0, 1))
sketch4.addConstraint(Sketcher.Constraint("Equal", 1, 2))
sketch4.addConstraint(Sketcher.Constraint("Equal", 2, 3))
sketch4.addConstraint(Sketcher.Constraint("PointOnObject", 0, 3, -1))
sketch4.addConstraint(Sketcher.Constraint("PointOnObject", 1, 3, -1))
sketch4.addConstraint(Sketcher.Constraint("PointOnObject", 2, 3, -1))
sketch4.addConstraint(Sketcher.Constraint("PointOnObject", 3, 3, -1))
sketch4.addConstraint(Sketcher.Constraint("Diameter", 0, Q("3.3 mm")))
sketch4.addConstraint(Sketcher.Constraint("DistanceX", -1, 1, 0, 3, Q("258 mm")))
sketch4.addConstraint(Sketcher.Constraint("DistanceX", 3, 3, -1, 1, Q("201 mm")))
sketch4.addConstraint(Sketcher.Constraint("DistanceX", 2, 3, 1, 3, Q("39 mm")))
sketch4.addConstraint(Sketcher.Constraint("DistanceX", -1, 1, 1, 3, Q("60.5 mm")))
doc.recompute()
hole3 = doc.addObject("PartDesign::Hole", "Hole002")
body.addObject(hole3)
hole3.Profile = sketch4
hole3.ThreadType = "None"
hole3.Diameter = 3.3
hole3.DepthType = "Dimension"
hole3.Depth = 11.5
hole3.DrillPoint = "Angled"
hole3.DrillPointAngle = 118
hole3.Reversed = True

doc.recompute()
